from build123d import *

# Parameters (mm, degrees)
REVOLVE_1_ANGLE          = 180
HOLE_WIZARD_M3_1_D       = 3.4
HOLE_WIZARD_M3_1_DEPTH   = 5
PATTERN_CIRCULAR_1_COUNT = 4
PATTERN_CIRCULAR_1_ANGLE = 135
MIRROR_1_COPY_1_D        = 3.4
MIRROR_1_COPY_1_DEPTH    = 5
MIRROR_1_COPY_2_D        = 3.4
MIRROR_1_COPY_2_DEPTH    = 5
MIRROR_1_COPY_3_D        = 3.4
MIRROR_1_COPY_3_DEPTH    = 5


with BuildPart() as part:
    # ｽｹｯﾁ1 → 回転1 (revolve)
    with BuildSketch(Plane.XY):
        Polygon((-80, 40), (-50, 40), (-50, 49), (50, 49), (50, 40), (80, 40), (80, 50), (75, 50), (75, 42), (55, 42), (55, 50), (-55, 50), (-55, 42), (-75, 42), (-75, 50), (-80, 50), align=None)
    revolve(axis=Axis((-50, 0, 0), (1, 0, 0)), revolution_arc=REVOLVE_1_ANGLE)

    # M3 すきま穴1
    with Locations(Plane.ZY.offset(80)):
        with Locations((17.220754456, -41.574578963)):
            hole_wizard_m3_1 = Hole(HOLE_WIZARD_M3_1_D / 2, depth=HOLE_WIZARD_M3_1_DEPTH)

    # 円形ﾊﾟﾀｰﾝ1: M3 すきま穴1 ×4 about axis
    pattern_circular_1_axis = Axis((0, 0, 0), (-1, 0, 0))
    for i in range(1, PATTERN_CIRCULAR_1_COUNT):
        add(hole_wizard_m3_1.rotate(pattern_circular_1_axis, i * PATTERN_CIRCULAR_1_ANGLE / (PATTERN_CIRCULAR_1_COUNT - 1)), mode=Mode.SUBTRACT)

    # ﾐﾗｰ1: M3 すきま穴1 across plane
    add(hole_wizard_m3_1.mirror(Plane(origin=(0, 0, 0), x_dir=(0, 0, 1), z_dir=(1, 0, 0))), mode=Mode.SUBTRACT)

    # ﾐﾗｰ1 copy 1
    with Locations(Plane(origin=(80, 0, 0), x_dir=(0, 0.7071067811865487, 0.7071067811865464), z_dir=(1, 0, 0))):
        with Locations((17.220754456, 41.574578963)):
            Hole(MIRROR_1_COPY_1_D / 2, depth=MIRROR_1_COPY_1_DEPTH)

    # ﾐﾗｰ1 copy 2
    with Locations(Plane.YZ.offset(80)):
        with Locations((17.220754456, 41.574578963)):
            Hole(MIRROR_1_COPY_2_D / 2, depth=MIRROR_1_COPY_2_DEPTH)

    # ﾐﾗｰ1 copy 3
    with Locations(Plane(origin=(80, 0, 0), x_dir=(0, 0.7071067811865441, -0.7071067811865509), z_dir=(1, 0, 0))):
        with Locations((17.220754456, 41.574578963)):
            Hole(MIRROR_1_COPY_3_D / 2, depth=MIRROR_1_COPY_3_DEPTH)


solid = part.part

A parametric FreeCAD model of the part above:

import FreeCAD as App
import Part
import Sketcher

V = App.Vector
Q = App.Units.Quantity

doc = App.newDocument("Part")
body = doc.addObject("PartDesign::Body", "Body")

# Sketch on XY plane
sketch1 = body.newObject("Sketcher::SketchObject", "Sketch")
sketch1.AttachmentSupport = (doc.getObject("XY_Plane"), [""])
sketch1.MapMode = "FlatFace"
sketch1.addGeometry([
    Part.LineSegment(V(-80, 40, 0), V(-50, 40, 0)),  # 0
    Part.LineSegment(V(-50, 40, 0), V(-50, 49, 0)),  # 1
    Part.LineSegment(V(-50, 49, 0), V(50, 49, 0)),  # 2
    Part.LineSegment(V(50, 49, 0), V(50, 40, 0)),  # 3
    Part.LineSegment(V(50, 40, 0), V(80, 40, 0)),  # 4
    Part.LineSegment(V(80, 40, 0), V(80, 50, 0)),  # 5
    Part.LineSegment(V(80, 50, 0), V(75, 50, 0)),  # 6
    Part.LineSegment(V(75, 50, 0), V(75, 42, 0)),  # 7
    Part.LineSegment(V(75, 42, 0), V(55, 42, 0)),  # 8
    Part.LineSegment(V(55, 42, 0), V(55, 50, 0)),  # 9
    Part.LineSegment(V(55, 50, 0), V(-55, 50, 0)),  # 10
    Part.LineSegment(V(-55, 50, 0), V(-55, 42, 0)),  # 11
    Part.LineSegment(V(-55, 42, 0), V(-75, 42, 0)),  # 12
    Part.LineSegment(V(-75, 42, 0), V(-75, 50, 0)),  # 13
    Part.LineSegment(V(-75, 50, 0), V(-80, 50, 0)),  # 14
    Part.LineSegment(V(-80, 50, 0), V(-80, 40, 0)),  # 15
], False)
sketch1.addConstraint([
    Sketcher.Constraint("Coincident", 0, 2, 1, 1),
    Sketcher.Constraint("Coincident", 1, 2, 2, 1),
    Sketcher.Constraint("Coincident", 2, 2, 3, 1),
    Sketcher.Constraint("Coincident", 3, 2, 4, 1),
    Sketcher.Constraint("Coincident", 4, 2, 5, 1),
    Sketcher.Constraint("Coincident", 5, 2, 6, 1),
    Sketcher.Constraint("Coincident", 6, 2, 7, 1),
    Sketcher.Constraint("Coincident", 7, 2, 8, 1),
    Sketcher.Constraint("Coincident", 8, 2, 9, 1),
    Sketcher.Constraint("Coincident", 9, 2, 10, 1),
    Sketcher.Constraint("Coincident", 10, 2, 11, 1),
    Sketcher.Constraint("Coincident", 11, 2, 12, 1),
    Sketcher.Constraint("Coincident", 12, 2, 13, 1),
    Sketcher.Constraint("Coincident", 13, 2, 14, 1),
    Sketcher.Constraint("Coincident", 14, 2, 15, 1),
    Sketcher.Constraint("Coincident", 15, 2, 0, 1),
    Sketcher.Constraint("Horizontal", 0),
    Sketcher.Constraint("Vertical", 1),
    Sketcher.Constraint("Horizontal", 2),
    Sketcher.Constraint("Vertical", 3),
    Sketcher.Constraint("Horizontal", 4),
    Sketcher.Constraint("Vertical", 5),
    Sketcher.Constraint("Horizontal", 6),
    Sketcher.Constraint("Vertical", 7),
    Sketcher.Constraint("Horizontal", 8),
    Sketcher.Constraint("Vertical", 9),
    Sketcher.Constraint("Horizontal", 10),
    Sketcher.Constraint("Vertical", 11),
    Sketcher.Constraint("Horizontal", 12),
    Sketcher.Constraint("Vertical", 13),
    Sketcher.Constraint("Horizontal", 14),
    Sketcher.Constraint("Vertical", 15),
    Sketcher.Constraint("Symmetric", 0, 2, 3, 2, -2),
    Sketcher.Constraint("Symmetric", 8, 2, 11, 2, -2),
    Sketcher.Constraint("Symmetric", 6, 2, 13, 2, -2),
    Sketcher.Constraint("Horizontal", 6, 2, 9, 2),
    Sketcher.Constraint("Equal", 0, 4),
    Sketcher.Constraint("DistanceX", 0, 1, 0, 2, Q("30 mm")),
    Sketcher.Constraint("DistanceX", 2, 1, 2, 2, Q("100 mm")),
    Sketcher.Constraint("DistanceX", 6, 2, 6, 1, Q("5 mm")),
    Sketcher.Constraint("DistanceX", 8, 2, 8, 1, Q("20 mm")),
    Sketcher.Constraint("DistanceY", 1, 1, 1, 2, Q("9 mm")),
    Sketcher.Constraint("DistanceY", 5, 1, 5, 2, Q("10 mm")),
    Sketcher.Constraint("DistanceY", 7, 2, 7, 1, Q("8 mm")),
    Sketcher.Constraint("DistanceY", -1, 1, 0, 2, Q("40 mm")),
])
revolution = body.newObject("PartDesign::Revolution", "Revolution")
revolution.Profile = sketch1
revolution.ReferenceAxis = (sketch1, ["H_Axis"])
revolution.Angle = 180

# Sketch on YZ plane
sketch2 = body.newObject("Sketcher::SketchObject", "Sketch001")
sketch2.AttachmentSupport = (doc.getObject("YZ_Plane"), [""])
sketch2.MapMode = "FlatFace"
sketch2.AttachmentOffset = App.Placement(V(0, 0, -80), App.Rotation())
sketch2.addGeometry(Part.Circle(V(-41.6, 17.2, 0), V(0, 0, 1), 1.7), False)
sketch2.addConstraint([
    Sketcher.Constraint("Diameter", 0, Q("3.4 mm")),
    Sketcher.Constraint("DistanceX", 0, 3, -1, 1, Q("41.574579 mm")),
    Sketcher.Constraint("DistanceY", -1, 1, 0, 3, Q("17.220754 mm")),
])
doc.recompute()
hole = body.newObject("PartDesign::Hole", "Hole")
hole.Profile = sketch2
hole.ThreadType = "None"
hole.Diameter = 3.4
hole.DepthType = "Dimension"
hole.Depth = 5
hole.DrillPoint = "Flat"
hole.Reversed = True
doc.recompute()

polarpattern = body.newObject("PartDesign::PolarPattern", "PolarPattern")
polarpattern.Originals = [hole]
polarpattern.Axis = (doc.getObject("X_Axis"), [""])
polarpattern.Angle = 135
polarpattern.Occurrences = 4
polarpattern.Reversed = True
body.Tip = polarpattern
doc.recompute()

mirrored = body.newObject("PartDesign::Mirrored", "Mirrored")
mirrored.Originals = [hole]
mirrored.MirrorPlane = (doc.getObject("YZ_Plane"), [""])
body.Tip = mirrored

# Sketch on YZ plane
sketch3 = body.newObject("Sketcher::SketchObject", "Sketch002")
sketch3.AttachmentSupport = (doc.getObject("YZ_Plane"), [""])
sketch3.MapMode = "FlatFace"
sketch3.AttachmentOffset = App.Placement(V(0, 0, 80), App.Rotation())
sketch3.addGeometry(Part.Circle(V(-17.2, 41.6, 0), V(0, 0, 1), 1.7), False)
sketch3.addConstraint([
    Sketcher.Constraint("Diameter", 0, Q("3.4 mm")),
    Sketcher.Constraint("DistanceY", -1, 1, 0, 3, Q("41.574579 mm")),
    Sketcher.Constraint("DistanceX", 0, 3, -1, 1, Q("17.220754 mm")),
])
doc.recompute()
hole2 = body.newObject("PartDesign::Hole", "Hole001")
hole2.Profile = sketch3
hole2.ThreadType = "None"
hole2.Diameter = 3.4
hole2.DepthType = "Dimension"
hole2.Depth = 5
hole2.DrillPoint = "Flat"

# Sketch on YZ plane
sketch4 = body.newObject("Sketcher::SketchObject", "Sketch003")
sketch4.AttachmentSupport = (doc.getObject("YZ_Plane"), [""])
sketch4.MapMode = "FlatFace"
sketch4.AttachmentOffset = App.Placement(V(0, 0, 80), App.Rotation())
sketch4.addGeometry(Part.Circle(V(17.2, 41.6, 0), V(0, 0, 1), 1.7), False)
sketch4.addConstraint([
    Sketcher.Constraint("Diameter", 0, Q("3.4 mm")),
    Sketcher.Constraint("DistanceY", -1, 1, 0, 3, Q("41.574579 mm")),
    Sketcher.Constraint("DistanceX", -1, 1, 0, 3, Q("17.220754 mm")),
])
doc.recompute()
hole3 = body.newObject("PartDesign::Hole", "Hole002")
hole3.Profile = sketch4
hole3.ThreadType = "None"
hole3.Diameter = 3.4
hole3.DepthType = "Dimension"
hole3.Depth = 5
hole3.DrillPoint = "Flat"

# Sketch on YZ plane
sketch5 = body.newObject("Sketcher::SketchObject", "Sketch004")
sketch5.AttachmentSupport = (doc.getObject("YZ_Plane"), [""])
sketch5.MapMode = "FlatFace"
sketch5.AttachmentOffset = App.Placement(V(0, 0, 80), App.Rotation())
sketch5.addGeometry(Part.Circle(V(41.6, 17.2, 0), V(0, 0, 1), 1.7), False)
sketch5.addConstraint([
    Sketcher.Constraint("Diameter", 0, Q("3.4 mm")),
    Sketcher.Constraint("DistanceX", -1, 1, 0, 3, Q("41.574579 mm")),
    Sketcher.Constraint("DistanceY", -1, 1, 0, 3, Q("17.220754 mm")),
])
doc.recompute()
hole4 = body.newObject("PartDesign::Hole", "Hole003")
hole4.Profile = sketch5
hole4.ThreadType = "None"
hole4.Diameter = 3.4
hole4.DepthType = "Dimension"
hole4.Depth = 5
hole4.DrillPoint = "Flat"

doc.recompute()
